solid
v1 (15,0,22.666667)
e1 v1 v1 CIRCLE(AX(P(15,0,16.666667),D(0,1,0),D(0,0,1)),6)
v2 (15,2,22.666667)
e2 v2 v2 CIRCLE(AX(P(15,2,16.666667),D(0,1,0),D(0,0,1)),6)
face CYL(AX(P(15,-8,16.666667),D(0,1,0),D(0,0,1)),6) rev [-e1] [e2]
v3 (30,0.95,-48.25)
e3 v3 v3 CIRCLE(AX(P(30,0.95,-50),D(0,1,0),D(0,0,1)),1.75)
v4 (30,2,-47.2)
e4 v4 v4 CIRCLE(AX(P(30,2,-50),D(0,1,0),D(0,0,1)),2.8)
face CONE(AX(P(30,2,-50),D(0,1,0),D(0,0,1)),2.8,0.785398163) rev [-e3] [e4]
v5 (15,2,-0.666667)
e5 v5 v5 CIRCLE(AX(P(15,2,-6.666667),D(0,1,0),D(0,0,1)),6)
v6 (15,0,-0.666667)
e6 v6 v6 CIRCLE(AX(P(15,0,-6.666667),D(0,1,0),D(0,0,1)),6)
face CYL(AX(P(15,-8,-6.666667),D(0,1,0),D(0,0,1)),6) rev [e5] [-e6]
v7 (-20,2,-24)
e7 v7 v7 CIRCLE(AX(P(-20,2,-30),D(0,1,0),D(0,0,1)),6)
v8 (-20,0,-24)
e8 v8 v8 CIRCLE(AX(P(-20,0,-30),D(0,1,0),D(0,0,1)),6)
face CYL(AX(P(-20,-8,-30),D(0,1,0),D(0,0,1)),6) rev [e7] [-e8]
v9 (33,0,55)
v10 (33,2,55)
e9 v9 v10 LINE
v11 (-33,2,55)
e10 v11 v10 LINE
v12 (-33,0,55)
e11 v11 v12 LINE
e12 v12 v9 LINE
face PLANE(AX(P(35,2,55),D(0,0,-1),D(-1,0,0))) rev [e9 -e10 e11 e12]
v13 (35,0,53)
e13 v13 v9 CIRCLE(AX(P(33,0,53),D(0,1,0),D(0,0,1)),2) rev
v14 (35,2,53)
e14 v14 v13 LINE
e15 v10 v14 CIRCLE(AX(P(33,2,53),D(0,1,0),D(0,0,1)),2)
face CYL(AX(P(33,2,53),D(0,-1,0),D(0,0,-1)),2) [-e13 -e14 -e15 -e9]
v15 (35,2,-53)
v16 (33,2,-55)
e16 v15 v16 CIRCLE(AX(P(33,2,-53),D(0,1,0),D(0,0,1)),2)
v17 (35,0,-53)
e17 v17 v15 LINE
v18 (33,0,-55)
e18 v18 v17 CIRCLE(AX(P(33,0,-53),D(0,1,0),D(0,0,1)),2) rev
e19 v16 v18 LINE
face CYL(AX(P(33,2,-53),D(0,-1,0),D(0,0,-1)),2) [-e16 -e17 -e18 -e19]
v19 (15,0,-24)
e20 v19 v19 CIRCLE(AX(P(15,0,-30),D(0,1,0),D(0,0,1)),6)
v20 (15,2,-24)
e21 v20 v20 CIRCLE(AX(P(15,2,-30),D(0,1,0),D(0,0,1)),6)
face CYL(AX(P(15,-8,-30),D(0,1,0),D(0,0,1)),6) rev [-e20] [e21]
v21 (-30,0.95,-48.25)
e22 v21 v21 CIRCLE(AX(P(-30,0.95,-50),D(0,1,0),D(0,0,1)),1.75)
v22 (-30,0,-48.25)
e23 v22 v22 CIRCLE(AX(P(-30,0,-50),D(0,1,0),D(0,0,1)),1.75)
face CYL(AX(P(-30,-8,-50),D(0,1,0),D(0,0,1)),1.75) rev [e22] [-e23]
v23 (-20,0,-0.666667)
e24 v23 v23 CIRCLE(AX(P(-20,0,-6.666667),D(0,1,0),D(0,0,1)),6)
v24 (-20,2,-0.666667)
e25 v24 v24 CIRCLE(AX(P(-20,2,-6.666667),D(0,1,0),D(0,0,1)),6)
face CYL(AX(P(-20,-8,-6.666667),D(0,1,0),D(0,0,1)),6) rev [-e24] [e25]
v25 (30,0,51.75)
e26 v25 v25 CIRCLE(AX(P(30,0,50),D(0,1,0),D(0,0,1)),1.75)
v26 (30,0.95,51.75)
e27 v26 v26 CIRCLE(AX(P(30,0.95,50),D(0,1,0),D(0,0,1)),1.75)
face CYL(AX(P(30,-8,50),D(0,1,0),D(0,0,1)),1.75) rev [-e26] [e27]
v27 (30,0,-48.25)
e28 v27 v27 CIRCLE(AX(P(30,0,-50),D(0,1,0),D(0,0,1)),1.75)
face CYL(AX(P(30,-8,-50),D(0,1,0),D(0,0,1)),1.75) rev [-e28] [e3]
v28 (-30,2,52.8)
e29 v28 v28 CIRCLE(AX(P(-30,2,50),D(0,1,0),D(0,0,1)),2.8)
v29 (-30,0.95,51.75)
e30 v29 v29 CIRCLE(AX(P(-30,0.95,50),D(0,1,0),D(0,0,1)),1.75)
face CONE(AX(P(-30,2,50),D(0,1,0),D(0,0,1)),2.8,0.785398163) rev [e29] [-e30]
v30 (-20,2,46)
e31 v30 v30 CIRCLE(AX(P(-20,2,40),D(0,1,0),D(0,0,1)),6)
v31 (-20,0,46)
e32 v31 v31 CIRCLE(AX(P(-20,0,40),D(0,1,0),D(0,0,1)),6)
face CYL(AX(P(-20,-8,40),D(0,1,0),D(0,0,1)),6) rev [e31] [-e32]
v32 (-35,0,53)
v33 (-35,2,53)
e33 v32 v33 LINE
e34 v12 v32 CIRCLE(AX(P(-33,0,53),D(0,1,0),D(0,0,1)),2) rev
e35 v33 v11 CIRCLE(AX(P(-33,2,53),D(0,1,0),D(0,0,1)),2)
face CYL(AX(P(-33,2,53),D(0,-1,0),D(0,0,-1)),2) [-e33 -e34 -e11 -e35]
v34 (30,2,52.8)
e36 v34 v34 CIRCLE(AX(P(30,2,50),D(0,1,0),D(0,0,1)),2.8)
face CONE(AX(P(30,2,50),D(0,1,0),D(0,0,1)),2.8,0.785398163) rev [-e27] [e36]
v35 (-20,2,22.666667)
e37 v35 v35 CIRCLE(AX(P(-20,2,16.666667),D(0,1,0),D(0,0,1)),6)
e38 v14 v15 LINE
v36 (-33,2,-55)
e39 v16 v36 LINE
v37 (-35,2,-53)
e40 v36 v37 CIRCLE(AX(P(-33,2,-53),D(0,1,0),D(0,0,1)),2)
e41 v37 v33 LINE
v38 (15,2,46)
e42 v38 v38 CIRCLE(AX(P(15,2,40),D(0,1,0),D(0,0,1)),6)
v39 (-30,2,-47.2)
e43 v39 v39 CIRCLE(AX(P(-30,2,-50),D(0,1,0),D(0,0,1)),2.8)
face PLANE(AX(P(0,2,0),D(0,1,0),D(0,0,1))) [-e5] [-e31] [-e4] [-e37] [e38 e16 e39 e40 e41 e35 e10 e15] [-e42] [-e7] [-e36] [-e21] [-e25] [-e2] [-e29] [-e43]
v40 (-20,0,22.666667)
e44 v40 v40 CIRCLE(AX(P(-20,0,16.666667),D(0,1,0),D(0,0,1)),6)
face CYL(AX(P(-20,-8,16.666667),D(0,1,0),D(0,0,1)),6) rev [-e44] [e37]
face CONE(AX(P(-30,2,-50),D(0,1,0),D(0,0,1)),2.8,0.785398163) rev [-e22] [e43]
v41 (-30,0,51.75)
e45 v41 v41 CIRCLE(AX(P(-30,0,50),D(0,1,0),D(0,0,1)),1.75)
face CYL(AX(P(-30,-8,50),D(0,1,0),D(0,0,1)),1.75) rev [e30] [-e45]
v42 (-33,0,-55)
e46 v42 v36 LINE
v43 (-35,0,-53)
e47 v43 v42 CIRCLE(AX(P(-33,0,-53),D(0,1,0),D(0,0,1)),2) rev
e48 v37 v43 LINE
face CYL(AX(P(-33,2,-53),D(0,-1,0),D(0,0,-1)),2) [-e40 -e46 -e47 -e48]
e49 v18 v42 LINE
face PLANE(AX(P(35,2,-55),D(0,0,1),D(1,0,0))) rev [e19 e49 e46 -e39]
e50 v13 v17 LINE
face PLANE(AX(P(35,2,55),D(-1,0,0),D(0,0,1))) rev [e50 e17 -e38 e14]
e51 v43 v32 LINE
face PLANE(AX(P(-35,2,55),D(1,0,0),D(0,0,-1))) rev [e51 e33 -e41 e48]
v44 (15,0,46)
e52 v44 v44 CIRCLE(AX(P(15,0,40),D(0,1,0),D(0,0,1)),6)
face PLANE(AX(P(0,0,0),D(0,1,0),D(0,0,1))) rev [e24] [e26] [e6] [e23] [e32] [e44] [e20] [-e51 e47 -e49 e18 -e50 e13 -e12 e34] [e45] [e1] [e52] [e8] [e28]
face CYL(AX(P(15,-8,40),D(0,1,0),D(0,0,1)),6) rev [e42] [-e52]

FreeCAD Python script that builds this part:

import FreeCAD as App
import Part
import Sketcher


def edges_at(feature, points):
    """Names of the edges that pass closest to the given points."""
    edges = feature.Shape.Edges
    near = lambda p: min(range(len(edges)), key=lambda i: edges[i].distToShape(Part.Vertex(*p))[0])
    return sorted({f"Edge{near(p) + 1}" for p in points})


def add_polygon(sketch, points):
    """Adds a closed chain of lines whose ends are joined by coincident constraints."""
    first, n = sketch.GeometryCount, len(points)
    for a, b in zip(points, points[1:] + points[:1]):
        sketch.addGeometry(Part.LineSegment(App.Vector(*a, 0), App.Vector(*b, 0)), False)
    for i in range(n):
        sketch.addConstraint(Sketcher.Constraint("Coincident", first + i, 2, first + (i + 1) % n, 1))

doc = App.newDocument("Part")
body = doc.addObject("PartDesign::Body", "Body")

# Sketch on XZ plane
sketch1 = body.newObject("Sketcher::SketchObject", "Sketch")
sketch1.AttachmentSupport = (doc.getObject("XZ_Plane"), [""])
sketch1.MapMode = "FlatFace"
add_polygon(sketch1, [(-35, -55), (-35, 55), (35, 55), (35, -55)])  # lines 0-3
sketch1.addConstraint([
    Sketcher.Constraint("Vertical", 0),
    Sketcher.Constraint("Horizontal", 1),
    Sketcher.Constraint("Vertical", 2),
    Sketcher.Constraint("Horizontal", 3),
    Sketcher.Constraint("Symmetric", 0, 2, 2, 2, -1, 1),
    Sketcher.Constraint("DistanceX", 1, 1, 1, 2, 70.0),
    Sketcher.Constraint("DistanceY", 0, 1, 0, 2, 110.0),
])
pad1 = body.newObject("PartDesign::Pad", "Pad")
pad1.Profile = sketch1
pad1.Length = 2
pad1.Reversed = True

# Sketch on XZ plane
sketch2 = body.newObject("Sketcher::SketchObject", "Sketch001")
sketch2.AttachmentSupport = (doc.getObject("XZ_Plane"), [""])
sketch2.MapMode = "FlatFace"
sketch2.AttachmentOffset = App.Placement(App.Vector(0, 0, -2), App.Rotation())
sketch2.addGeometry([
    Part.Circle(App.Vector(-20, -30, 0), App.Vector(0, 0, 1), 6),  # 0
    Part.Circle(App.Vector(15, -30, 0), App.Vector(0, 0, 1), 6),  # 1
    Part.Circle(App.Vector(-20, -7, 0), App.Vector(0, 0, 1), 6),  # 2
    Part.Circle(App.Vector(15, -7, 0), App.Vector(0, 0, 1), 6),  # 3
    Part.Circle(App.Vector(-20, 17, 0), App.Vector(0, 0, 1), 6),  # 4
    Part.Circle(App.Vector(-20, 40, 0), App.Vector(0, 0, 1), 6),  # 5
    Part.Circle(App.Vector(15, 17, 0), App.Vector(0, 0, 1), 6),  # 6
    Part.Circle(App.Vector(15, 40, 0), App.Vector(0, 0, 1), 6),  # 7
], False)
sketch2.addConstraint([
    Sketcher.Constraint("Equal", 0, 1),
    Sketcher.Constraint("Equal", 1, 2),
    Sketcher.Constraint("Equal", 2, 3),
    Sketcher.Constraint("Equal", 3, 4),
    Sketcher.Constraint("Equal", 4, 5),
    Sketcher.Constraint("Equal", 5, 6),
    Sketcher.Constraint("Equal", 6, 7),
    Sketcher.Constraint("Horizontal", 0, 3, 1, 3),
    Sketcher.Constraint("Horizontal", 2, 3, 3, 3),
    Sketcher.Constraint("Horizontal", 4, 3, 6, 3),
    Sketcher.Constraint("Horizontal", 5, 3, 7, 3),
    Sketcher.Constraint("Vertical", 0, 3, 2, 3),
    Sketcher.Constraint("Vertical", 1, 3, 3, 3),
    Sketcher.Constraint("Vertical", 2, 3, 4, 3),
    Sketcher.Constraint("Vertical", 4, 3, 5, 3),
    Sketcher.Constraint("Vertical", 3, 3, 6, 3),
    Sketcher.Constraint("Vertical", 6, 3, 7, 3),
    Sketcher.Constraint("Diameter", 0, 12.0),
    Sketcher.Constraint("DistanceX", 0, 3, -1, 1, 20.0),
    Sketcher.Constraint("DistanceY", 0, 3, -1, 1, 30.0),
    Sketcher.Constraint("DistanceX", -1, 1, 1, 3, 15.0),
    Sketcher.Constraint("DistanceY", -1, 1, 5, 3, 40.0),
    Sketcher.Constraint("DistanceY", 2, 3, -1, 1, 6.666667),
    Sketcher.Constraint("DistanceY", -1, 1, 4, 3, 16.666667),
])
pocket1 = body.newObject("PartDesign::Pocket", "Pocket")
pocket1.Profile = sketch2
pocket1.Length = 10
pocket1.Reversed = True

# Sketch on XZ plane
sketch3 = body.newObject("Sketcher::SketchObject", "Sketch002")
sketch3.AttachmentSupport = (doc.getObject("XZ_Plane"), [""])
sketch3.MapMode = "FlatFace"
sketch3.AttachmentOffset = App.Placement(App.Vector(0, 0, -2), App.Rotation())
sketch3.addGeometry([
    Part.Circle(App.Vector(-30, -50, 0), App.Vector(0, 0, 1), 1.8),
    Part.Circle(App.Vector(30, -50, 0), App.Vector(0, 0, 1), 1.8),
    Part.Circle(App.Vector(-30, 50, 0), App.Vector(0, 0, 1), 1.8),
    Part.Circle(App.Vector(30, 50, 0), App.Vector(0, 0, 1), 1.8),
], False)
sketch3.addConstraint([
    Sketcher.Constraint("Equal", 0, 1),
    Sketcher.Constraint("Equal", 1, 2),
    Sketcher.Constraint("Equal", 2, 3),
    Sketcher.Constraint("Symmetric", 1, 3, 2, 3, -1, 1),
    Sketcher.Constraint("Symmetric", 0, 3, 3, 3, -1, 1),
    Sketcher.Constraint("Symmetric", 0, 3, 1, 3, -2),
    Sketcher.Constraint("Diameter", 0, 3.5),
    Sketcher.Constraint("DistanceX", 0, 3, -1, 1, 30.0),
    Sketcher.Constraint("DistanceY", 0, 3, -1, 1, 50.0),
])
pocket2 = body.newObject("PartDesign::Pocket", "Pocket001")
pocket2.Profile = sketch3
pocket2.Length = 10
pocket2.Reversed = True

# Sketch on YZ plane
sketch4 = body.newObject("Sketcher::SketchObject", "Sketch003")
sketch4.AttachmentSupport = (doc.getObject("YZ_Plane"), [""])
sketch4.MapMode = "FlatFace"
sketch4.AttachmentOffset = App.Placement(App.Vector(0, 0, -30), App.Rotation())
add_polygon(sketch4, [(2, -50), (2, -47.2), (-0.8, -50)])  # lines 0-2
sketch4.addGeometry(Part.LineSegment(App.Vector(2, -50, 0), App.Vector(-0.8, -50, 0)), True)  # axis
sketch4.addConstraint([
    Sketcher.Constraint("Vertical", 0),
    Sketcher.Constraint("Horizontal", 2),
    Sketcher.Constraint("Horizontal", 3),
    Sketcher.Constraint("Coincident", 3, 1, 2, 2),
    Sketcher.Constraint("Equal", 2, 3),
    Sketcher.Constraint("Equal", 3, 0),
    Sketcher.Constraint("DistanceX", 2, 1, 2, 2, 2.8),
    Sketcher.Constraint("DistanceX", -1, 1, 0, 2, 2.0),
    Sketcher.Constraint("DistanceY", 1, 2, -1, 1, 50.0),
])
groove = body.newObject("PartDesign::Groove", "Groove")
groove.Profile = sketch4
groove.ReferenceAxis = (sketch4, ["Axis0"])
groove.Angle = 360

# Sketch on YZ plane
sketch5 = body.newObject("Sketcher::SketchObject", "Sketch004")
sketch5.AttachmentSupport = (doc.getObject("YZ_Plane"), [""])
sketch5.MapMode = "FlatFace"
sketch5.AttachmentOffset = App.Placement(App.Vector(0, 0, 30), App.Rotation())
add_polygon(sketch5, [(2, -50), (2, -47.2), (-0.8, -50)])  # lines 0-2
sketch5.addGeometry(Part.LineSegment(App.Vector(2, -50, 0), App.Vector(-0.8, -50, 0)), True)  # axis
sketch5.addConstraint([
    Sketcher.Constraint("Vertical", 0),
    Sketcher.Constraint("Horizontal", 2),
    Sketcher.Constraint("Horizontal", 3),
    Sketcher.Constraint("Coincident", 3, 1, 2, 2),
    Sketcher.Constraint("Equal", 2, 3),
    Sketcher.Constraint("Equal", 3, 0),
    Sketcher.Constraint("DistanceX", 2, 1, 2, 2, 2.8),
    Sketcher.Constraint("DistanceX", -1, 1, 0, 2, 2.0),
    Sketcher.Constraint("DistanceY", 1, 2, -1, 1, 50.0),
])
groove2 = body.newObject("PartDesign::Groove", "Groove001")
groove2.Profile = sketch5
groove2.ReferenceAxis = (sketch5, ["Axis0"])
groove2.Angle = 360

# Sketch on YZ plane
sketch6 = body.newObject("Sketcher::SketchObject", "Sketch005")
sketch6.AttachmentSupport = (doc.getObject("YZ_Plane"), [""])
sketch6.MapMode = "FlatFace"
sketch6.AttachmentOffset = App.Placement(App.Vector(0, 0, 30), App.Rotation())
add_polygon(sketch6, [(2, 50), (2, 52.8), (-0.8, 50)])  # lines 0-2
sketch6.addGeometry(Part.LineSegment(App.Vector(2, 50, 0), App.Vector(-0.8, 50, 0)), True)  # axis
sketch6.addConstraint([
    Sketcher.Constraint("Vertical", 0),
    Sketcher.Constraint("Horizontal", 2),
    Sketcher.Constraint("Horizontal", 3),
    Sketcher.Constraint("Coincident", 3, 1, 2, 2),
    Sketcher.Constraint("Equal", 2, 3),
    Sketcher.Constraint("Equal", 3, 0),
    Sketcher.Constraint("DistanceX", 2, 1, 2, 2, 2.8),
    Sketcher.Constraint("DistanceX", -1, 1, 0, 2, 2.0),
    Sketcher.Constraint("DistanceY", -1, 1, 1, 2, 50.0),
])
groove3 = body.newObject("PartDesign::Groove", "Groove002")
groove3.Profile = sketch6
groove3.ReferenceAxis = (sketch6, ["Axis0"])
groove3.Angle = 360

# Sketch on YZ plane
sketch7 = body.newObject("Sketcher::SketchObject", "Sketch006")
sketch7.AttachmentSupport = (doc.getObject("YZ_Plane"), [""])
sketch7.MapMode = "FlatFace"
sketch7.AttachmentOffset = App.Placement(App.Vector(0, 0, -30), App.Rotation())
add_polygon(sketch7, [(2, 50), (2, 52.8), (-0.8, 50)])  # lines 0-2
sketch7.addGeometry(Part.LineSegment(App.Vector(2, 50, 0), App.Vector(-0.8, 50, 0)), True)  # axis
sketch7.addConstraint([
    Sketcher.Constraint("Vertical", 0),
    Sketcher.Constraint("Horizontal", 2),
    Sketcher.Constraint("Horizontal", 3),
    Sketcher.Constraint("Coincident", 3, 1, 2, 2),
    Sketcher.Constraint("Equal", 2, 3),
    Sketcher.Constraint("Equal", 3, 0),
    Sketcher.Constraint("DistanceX", 2, 1, 2, 2, 2.8),
    Sketcher.Constraint("DistanceX", -1, 1, 0, 2, 2.0),
    Sketcher.Constraint("DistanceY", -1, 1, 1, 2, 50.0),
])
groove4 = body.newObject("PartDesign::Groove", "Groove003")
groove4.Profile = sketch7
groove4.ReferenceAxis = (sketch7, ["Axis0"])
groove4.Angle = 360
doc.recompute()

fillet = body.newObject("PartDesign::Fillet", "Fillet")
fillet.Base = (groove4, edges_at(groove4, [(-35, 1, -55)]))
fillet.Radius = 2
doc.recompute()

fillet2 = body.newObject("PartDesign::Fillet", "Fillet001")
fillet2.Base = (fillet, edges_at(fillet, [(35, 1, -55)]))
fillet2.Radius = 2
doc.recompute()

fillet3 = body.newObject("PartDesign::Fillet", "Fillet002")
fillet3.Base = (fillet2, edges_at(fillet2, [(35, 1, 55)]))
fillet3.Radius = 2
doc.recompute()

fillet4 = body.newObject("PartDesign::Fillet", "Fillet003")
fillet4.Base = (fillet3, edges_at(fillet3, [(-35, 1, 55)]))
fillet4.Radius = 2

doc.recompute()
